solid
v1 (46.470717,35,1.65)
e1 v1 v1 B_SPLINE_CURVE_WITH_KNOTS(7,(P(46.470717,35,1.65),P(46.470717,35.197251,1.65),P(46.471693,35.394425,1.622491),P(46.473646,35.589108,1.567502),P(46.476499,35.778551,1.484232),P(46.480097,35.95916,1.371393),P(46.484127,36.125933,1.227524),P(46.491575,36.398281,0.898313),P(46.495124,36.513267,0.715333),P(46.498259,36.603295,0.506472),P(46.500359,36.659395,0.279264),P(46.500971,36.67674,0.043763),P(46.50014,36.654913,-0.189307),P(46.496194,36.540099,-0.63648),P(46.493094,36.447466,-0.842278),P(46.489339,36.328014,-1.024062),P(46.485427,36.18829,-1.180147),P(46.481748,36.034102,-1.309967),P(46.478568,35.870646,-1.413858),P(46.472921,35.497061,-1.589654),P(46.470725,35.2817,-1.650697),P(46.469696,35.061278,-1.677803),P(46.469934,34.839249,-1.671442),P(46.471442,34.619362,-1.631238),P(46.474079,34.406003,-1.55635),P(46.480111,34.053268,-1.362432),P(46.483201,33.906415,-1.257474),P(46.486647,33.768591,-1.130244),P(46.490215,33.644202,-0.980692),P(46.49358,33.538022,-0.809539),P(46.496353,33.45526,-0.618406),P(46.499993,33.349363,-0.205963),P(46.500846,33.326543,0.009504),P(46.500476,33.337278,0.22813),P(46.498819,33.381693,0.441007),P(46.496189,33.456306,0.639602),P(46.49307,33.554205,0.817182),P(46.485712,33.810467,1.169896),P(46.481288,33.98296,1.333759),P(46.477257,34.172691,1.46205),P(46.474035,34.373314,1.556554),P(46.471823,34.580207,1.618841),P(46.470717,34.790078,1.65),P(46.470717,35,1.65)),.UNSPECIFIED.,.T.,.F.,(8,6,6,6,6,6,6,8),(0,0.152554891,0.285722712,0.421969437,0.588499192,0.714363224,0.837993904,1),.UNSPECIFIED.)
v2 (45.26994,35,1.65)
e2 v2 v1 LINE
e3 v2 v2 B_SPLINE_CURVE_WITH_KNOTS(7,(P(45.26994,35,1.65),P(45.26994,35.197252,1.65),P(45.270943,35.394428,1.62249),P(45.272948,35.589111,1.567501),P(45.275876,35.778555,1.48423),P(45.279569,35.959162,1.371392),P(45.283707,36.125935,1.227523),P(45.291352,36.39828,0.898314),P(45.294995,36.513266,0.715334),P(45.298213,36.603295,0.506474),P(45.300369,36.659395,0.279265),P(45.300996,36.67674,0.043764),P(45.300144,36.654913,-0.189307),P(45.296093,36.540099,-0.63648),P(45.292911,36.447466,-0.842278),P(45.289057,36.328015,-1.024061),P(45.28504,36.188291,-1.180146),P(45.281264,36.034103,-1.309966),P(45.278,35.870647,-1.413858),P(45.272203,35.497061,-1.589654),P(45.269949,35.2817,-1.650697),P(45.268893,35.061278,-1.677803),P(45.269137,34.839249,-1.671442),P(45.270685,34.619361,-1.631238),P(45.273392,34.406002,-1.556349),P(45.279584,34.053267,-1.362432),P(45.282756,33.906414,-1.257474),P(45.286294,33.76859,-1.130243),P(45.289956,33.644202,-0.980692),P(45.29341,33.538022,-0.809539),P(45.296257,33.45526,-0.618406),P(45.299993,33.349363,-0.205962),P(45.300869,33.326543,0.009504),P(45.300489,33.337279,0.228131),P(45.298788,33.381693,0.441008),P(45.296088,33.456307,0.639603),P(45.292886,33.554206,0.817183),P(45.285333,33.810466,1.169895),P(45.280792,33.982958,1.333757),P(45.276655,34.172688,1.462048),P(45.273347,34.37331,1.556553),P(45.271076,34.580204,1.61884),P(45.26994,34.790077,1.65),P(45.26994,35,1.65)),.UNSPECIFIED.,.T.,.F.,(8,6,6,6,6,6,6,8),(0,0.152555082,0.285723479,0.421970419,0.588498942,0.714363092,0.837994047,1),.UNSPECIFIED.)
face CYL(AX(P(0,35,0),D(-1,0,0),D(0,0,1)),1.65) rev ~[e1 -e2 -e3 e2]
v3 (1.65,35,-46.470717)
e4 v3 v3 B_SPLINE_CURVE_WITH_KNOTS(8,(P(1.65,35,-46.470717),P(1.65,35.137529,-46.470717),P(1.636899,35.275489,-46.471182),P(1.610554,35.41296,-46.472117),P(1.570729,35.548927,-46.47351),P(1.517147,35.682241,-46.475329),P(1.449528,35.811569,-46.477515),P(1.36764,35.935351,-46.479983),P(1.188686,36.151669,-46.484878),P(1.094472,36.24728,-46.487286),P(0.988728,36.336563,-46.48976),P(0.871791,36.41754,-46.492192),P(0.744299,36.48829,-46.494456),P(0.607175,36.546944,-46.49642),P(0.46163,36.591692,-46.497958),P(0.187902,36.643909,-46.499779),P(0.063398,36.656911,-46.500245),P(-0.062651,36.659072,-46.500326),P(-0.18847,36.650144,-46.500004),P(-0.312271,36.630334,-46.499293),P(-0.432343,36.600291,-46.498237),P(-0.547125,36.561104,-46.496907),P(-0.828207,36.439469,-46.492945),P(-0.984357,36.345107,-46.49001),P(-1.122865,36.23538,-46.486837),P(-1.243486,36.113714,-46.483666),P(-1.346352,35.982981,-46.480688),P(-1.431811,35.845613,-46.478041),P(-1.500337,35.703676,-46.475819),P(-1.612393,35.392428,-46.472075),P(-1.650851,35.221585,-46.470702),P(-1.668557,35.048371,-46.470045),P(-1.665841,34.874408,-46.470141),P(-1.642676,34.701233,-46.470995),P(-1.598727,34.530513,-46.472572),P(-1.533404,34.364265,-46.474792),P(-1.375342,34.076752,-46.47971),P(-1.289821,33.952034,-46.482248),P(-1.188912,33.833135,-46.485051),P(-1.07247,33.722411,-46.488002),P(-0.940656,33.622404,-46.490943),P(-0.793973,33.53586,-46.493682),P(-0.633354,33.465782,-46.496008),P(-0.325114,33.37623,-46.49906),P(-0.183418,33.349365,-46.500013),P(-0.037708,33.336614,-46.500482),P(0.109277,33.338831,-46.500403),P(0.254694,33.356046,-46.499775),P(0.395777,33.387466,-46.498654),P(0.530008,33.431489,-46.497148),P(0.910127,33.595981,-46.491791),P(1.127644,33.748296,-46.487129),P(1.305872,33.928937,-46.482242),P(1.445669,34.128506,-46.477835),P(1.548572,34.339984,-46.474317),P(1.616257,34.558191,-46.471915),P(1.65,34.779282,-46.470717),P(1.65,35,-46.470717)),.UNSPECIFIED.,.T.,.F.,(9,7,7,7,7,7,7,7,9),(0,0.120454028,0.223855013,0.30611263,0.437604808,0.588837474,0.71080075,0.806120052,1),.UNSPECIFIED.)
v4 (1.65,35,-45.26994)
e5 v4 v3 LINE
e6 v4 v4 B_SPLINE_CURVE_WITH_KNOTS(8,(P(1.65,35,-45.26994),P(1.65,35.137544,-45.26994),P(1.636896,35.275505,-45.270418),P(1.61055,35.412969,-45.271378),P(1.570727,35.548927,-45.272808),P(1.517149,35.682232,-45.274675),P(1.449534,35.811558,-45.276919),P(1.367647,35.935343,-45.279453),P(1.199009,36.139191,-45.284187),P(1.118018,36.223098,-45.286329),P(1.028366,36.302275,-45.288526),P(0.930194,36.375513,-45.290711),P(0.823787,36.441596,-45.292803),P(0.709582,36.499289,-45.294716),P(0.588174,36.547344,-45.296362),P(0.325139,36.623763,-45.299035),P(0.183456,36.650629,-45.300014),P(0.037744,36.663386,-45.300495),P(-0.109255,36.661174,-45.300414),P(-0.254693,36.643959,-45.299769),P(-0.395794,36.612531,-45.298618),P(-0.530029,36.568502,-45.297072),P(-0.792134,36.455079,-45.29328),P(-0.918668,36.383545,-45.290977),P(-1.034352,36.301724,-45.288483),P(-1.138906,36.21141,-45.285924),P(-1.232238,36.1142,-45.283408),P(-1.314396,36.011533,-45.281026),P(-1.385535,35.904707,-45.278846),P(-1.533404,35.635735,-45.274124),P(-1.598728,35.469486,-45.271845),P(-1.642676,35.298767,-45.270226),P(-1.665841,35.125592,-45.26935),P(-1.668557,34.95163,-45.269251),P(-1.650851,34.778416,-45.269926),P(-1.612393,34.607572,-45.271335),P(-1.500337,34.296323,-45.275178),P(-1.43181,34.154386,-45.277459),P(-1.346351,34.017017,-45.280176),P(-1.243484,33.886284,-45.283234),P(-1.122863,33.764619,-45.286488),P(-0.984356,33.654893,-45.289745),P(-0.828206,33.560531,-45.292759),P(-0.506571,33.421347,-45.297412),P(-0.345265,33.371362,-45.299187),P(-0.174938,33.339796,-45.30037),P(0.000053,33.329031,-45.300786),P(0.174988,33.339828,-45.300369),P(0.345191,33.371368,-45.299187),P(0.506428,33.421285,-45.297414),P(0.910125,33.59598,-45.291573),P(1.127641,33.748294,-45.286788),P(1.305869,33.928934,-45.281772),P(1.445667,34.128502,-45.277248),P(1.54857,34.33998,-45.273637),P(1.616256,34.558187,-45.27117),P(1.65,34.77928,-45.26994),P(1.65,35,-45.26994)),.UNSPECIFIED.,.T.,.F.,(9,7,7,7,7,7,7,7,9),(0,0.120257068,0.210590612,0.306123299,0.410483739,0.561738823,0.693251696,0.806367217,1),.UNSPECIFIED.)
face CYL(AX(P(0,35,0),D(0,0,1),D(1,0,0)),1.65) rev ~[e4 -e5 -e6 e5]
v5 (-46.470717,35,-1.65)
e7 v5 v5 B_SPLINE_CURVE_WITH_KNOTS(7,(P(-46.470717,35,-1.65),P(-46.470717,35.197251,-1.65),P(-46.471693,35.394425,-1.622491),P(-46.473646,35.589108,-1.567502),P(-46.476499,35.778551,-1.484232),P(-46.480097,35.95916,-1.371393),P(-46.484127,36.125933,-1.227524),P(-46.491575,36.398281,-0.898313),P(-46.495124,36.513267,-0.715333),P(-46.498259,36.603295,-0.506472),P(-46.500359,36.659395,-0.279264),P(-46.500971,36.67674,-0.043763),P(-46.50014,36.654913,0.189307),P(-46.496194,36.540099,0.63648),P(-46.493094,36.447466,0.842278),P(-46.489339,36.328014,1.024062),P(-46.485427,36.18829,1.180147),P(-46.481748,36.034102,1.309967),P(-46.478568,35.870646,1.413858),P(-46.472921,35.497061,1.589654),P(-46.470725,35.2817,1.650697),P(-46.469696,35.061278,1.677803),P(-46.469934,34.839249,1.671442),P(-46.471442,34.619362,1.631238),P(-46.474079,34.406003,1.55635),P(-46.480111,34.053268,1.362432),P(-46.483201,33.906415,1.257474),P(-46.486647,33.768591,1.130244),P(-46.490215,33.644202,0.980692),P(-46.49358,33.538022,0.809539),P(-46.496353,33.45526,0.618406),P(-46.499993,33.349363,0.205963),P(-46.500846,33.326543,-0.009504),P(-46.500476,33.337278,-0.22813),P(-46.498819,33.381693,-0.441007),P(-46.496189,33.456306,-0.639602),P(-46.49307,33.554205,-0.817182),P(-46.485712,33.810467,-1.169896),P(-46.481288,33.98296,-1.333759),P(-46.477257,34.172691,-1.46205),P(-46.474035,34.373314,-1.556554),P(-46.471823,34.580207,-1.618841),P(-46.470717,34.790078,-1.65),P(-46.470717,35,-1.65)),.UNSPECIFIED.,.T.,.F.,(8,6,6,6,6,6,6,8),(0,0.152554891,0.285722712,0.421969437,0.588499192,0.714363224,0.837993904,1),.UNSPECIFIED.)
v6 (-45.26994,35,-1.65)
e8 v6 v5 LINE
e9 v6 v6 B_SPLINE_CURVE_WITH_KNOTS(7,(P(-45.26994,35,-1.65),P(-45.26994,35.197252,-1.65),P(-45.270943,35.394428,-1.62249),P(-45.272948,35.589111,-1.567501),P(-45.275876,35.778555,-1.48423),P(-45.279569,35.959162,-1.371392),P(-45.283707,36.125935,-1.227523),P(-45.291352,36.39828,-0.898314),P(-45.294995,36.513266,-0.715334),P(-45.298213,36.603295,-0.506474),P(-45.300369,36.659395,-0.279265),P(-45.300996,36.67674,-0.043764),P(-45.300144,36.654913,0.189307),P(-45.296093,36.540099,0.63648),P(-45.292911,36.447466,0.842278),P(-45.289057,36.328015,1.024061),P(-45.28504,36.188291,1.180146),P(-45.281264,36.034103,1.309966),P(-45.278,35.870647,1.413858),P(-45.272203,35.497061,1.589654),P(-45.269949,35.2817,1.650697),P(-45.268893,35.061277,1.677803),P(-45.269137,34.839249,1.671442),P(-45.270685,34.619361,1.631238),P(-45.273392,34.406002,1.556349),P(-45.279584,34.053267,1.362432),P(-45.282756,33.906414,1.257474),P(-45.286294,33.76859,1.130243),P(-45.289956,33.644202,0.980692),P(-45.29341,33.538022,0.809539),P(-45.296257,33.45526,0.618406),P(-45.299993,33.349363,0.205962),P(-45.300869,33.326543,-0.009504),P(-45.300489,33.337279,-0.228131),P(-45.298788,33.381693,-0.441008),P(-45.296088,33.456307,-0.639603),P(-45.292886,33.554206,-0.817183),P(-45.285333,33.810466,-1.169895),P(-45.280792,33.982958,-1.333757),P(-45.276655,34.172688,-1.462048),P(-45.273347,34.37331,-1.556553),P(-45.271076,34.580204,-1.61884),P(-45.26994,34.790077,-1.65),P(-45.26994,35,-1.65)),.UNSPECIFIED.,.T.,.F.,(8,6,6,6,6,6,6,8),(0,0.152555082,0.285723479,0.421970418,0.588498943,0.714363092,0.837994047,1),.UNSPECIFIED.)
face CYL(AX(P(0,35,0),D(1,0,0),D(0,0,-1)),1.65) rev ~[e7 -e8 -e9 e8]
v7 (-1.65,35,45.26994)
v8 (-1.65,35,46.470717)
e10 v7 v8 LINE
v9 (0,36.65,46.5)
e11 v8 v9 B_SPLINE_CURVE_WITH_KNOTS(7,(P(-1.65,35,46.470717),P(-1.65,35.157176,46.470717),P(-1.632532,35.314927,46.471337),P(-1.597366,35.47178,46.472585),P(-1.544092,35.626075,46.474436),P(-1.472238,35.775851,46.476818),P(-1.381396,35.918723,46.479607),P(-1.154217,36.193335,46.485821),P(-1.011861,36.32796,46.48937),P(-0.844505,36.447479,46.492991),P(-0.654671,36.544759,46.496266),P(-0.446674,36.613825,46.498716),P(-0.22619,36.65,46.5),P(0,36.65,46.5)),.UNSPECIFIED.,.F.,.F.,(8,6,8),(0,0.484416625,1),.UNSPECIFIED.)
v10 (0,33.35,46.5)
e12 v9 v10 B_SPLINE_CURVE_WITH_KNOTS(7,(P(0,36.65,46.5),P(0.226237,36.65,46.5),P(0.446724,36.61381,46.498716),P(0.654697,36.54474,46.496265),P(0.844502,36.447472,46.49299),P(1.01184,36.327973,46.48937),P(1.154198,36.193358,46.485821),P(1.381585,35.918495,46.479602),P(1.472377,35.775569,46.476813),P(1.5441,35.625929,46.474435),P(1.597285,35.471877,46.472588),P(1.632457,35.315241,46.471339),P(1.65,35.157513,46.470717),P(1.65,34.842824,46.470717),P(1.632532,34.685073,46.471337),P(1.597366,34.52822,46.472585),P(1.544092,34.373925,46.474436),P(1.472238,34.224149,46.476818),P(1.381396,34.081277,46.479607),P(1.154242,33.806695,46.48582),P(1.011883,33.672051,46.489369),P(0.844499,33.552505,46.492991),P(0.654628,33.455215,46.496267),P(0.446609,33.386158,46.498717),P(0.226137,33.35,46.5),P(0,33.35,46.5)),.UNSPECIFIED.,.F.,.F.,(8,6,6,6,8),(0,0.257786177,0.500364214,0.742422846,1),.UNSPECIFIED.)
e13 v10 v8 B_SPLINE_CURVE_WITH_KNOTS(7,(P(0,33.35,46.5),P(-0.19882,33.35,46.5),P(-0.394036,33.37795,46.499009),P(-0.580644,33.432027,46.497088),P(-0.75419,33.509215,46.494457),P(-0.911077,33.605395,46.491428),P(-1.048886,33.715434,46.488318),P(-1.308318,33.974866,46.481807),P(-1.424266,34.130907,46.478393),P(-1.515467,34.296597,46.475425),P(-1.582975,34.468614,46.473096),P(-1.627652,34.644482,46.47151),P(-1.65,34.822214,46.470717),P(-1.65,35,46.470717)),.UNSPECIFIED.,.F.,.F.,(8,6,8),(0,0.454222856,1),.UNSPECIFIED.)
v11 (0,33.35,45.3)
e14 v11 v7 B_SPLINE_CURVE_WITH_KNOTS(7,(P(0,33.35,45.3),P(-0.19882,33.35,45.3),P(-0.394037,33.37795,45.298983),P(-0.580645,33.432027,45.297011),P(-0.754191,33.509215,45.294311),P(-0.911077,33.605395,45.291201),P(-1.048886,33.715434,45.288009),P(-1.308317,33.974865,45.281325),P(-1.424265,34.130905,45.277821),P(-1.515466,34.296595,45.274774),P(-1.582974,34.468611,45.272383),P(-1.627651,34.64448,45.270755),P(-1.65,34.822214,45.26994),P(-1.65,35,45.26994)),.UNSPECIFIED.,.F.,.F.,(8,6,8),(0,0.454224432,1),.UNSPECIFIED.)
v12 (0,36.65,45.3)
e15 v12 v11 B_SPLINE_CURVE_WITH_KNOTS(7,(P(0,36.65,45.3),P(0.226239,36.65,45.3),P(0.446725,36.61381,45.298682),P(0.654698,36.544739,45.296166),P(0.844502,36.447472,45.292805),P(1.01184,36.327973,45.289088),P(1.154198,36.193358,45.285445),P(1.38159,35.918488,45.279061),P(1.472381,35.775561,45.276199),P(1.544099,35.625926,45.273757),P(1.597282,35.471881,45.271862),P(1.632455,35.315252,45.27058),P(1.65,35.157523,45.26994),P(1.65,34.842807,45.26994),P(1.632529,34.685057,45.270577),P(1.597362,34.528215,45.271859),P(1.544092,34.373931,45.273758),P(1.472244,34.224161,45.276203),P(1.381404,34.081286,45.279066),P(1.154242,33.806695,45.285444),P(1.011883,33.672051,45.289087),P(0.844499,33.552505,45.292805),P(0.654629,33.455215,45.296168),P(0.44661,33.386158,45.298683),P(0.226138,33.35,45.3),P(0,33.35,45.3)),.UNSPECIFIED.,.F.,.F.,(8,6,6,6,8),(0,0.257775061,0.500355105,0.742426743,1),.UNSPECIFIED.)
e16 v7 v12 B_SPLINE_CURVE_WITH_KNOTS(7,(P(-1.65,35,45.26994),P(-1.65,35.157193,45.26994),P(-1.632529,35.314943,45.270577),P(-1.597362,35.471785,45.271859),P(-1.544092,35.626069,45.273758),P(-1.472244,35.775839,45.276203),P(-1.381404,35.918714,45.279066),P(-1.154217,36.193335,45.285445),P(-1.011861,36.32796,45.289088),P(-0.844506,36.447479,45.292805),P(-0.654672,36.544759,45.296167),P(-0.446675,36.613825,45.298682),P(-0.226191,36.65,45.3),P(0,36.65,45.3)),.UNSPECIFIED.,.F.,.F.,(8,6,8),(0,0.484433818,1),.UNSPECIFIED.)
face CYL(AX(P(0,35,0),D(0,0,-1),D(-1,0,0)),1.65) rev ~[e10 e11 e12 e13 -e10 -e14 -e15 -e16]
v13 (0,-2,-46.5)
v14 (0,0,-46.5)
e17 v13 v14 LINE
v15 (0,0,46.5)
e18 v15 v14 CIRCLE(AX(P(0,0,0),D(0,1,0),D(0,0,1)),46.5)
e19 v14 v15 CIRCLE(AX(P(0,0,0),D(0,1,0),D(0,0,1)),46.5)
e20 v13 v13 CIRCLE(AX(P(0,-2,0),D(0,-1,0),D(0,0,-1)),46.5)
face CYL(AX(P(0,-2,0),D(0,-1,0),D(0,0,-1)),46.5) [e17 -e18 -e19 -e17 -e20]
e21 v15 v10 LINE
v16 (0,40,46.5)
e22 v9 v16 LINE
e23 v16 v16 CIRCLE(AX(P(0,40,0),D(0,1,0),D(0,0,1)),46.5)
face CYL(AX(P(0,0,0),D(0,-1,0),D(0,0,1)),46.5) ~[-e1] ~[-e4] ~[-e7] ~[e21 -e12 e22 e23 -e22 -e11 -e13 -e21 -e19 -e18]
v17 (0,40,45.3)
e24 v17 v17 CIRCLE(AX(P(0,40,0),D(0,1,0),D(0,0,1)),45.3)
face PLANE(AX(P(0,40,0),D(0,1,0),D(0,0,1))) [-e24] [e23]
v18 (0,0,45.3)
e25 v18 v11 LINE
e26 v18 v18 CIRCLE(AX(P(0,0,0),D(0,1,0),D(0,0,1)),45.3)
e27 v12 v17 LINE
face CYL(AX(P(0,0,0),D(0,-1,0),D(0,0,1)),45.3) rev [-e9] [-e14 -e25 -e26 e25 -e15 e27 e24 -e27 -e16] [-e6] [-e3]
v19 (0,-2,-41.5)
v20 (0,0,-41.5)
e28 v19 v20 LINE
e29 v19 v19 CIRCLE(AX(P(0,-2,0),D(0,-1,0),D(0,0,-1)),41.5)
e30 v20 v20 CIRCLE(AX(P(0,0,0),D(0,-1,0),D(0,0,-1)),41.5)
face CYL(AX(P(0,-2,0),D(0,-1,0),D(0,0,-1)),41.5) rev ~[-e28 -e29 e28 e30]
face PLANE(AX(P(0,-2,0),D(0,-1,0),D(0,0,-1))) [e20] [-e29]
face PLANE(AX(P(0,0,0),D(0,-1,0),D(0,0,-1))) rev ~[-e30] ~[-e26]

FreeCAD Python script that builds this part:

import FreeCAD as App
import Part
import Sketcher
from FreeCAD import Vector

doc = App.newDocument("Part")
params = doc.addObject("Spreadsheet::Sheet", "Params")
for row, (alias, value) in enumerate([
    ("sketch1_diameter", "93 mm"),
    ("sketch1_diameter2", "90.6 mm"),
    ("pad1_length", "40 mm"),
    ("sketch2_diameter", "3.3 mm"),
    ("sketch3_diameter", "93 mm"),
    ("sketch3_diameter2", "83 mm"),
    ("pad2_length", "2 mm"),
], start=1):
    params.set(f"A{row}", alias)
    params.set(f"B{row}", "=" + value)
    params.setAlias(f"B{row}", alias)

body = doc.addObject("PartDesign::Body", "Body")

# Sketch on XZ plane
sketch1 = body.newObject("Sketcher::SketchObject", "Sketch")
sketch1.AttachmentSupport = (doc.getObject("XZ_Plane"), [""])
sketch1.MapMode = "FlatFace"
sketch1.addGeometry([
    Part.Circle(Vector(0, 0, 0), Vector(0, 0, 1), 46.5),
    Part.Circle(Vector(0, 0, 0), Vector(0, 0, 1), 45.3),
], False)
sketch1.addConstraint([
    Sketcher.Constraint("Coincident", 0, 3, -1, 1),
    Sketcher.Constraint("Coincident", 1, 3, -1, 1),
    Sketcher.Constraint("Diameter", 0, 93.0),
    Sketcher.Constraint("Diameter", 1, 90.6),
])
sketch1.setExpression("Constraints[2]", "Params.sketch1_diameter")
sketch1.setExpression("Constraints[3]", "Params.sketch1_diameter2")
pad1 = body.newObject("PartDesign::Pad", "Pad")
pad1.Profile = sketch1
pad1.setExpression("Length", "Params.pad1_length")
pad1.Reversed = True

# Sketch on YZ plane
sketch2 = body.newObject("Sketcher::SketchObject", "Sketch001")
sketch2.AttachmentSupport = (doc.getObject("YZ_Plane"), [""])
sketch2.MapMode = "FlatFace"
sketch2.addGeometry(Part.Circle(Vector(35, 0, 0), Vector(0, 0, 1), 1.65), False)
sketch2.addConstraint([
    Sketcher.Constraint("PointOnObject", 0, 3, -1),
    Sketcher.Constraint("Diameter", 0, 3.3),
    Sketcher.Constraint("DistanceX", -1, 1, 0, 3, 35.0),
])
sketch2.setExpression("Constraints[1]", "Params.sketch2_diameter")
pocket1 = body.newObject("PartDesign::Pocket", "Pocket")
pocket1.Profile = sketch2
pocket1.Type = "ThroughAll"
doc.recompute()

polarpattern = body.newObject("PartDesign::PolarPattern", "PolarPattern")
polarpattern.Originals = [pocket1]
polarpattern.Axis = (doc.getObject("Y_Axis"), [""])
polarpattern.Angle = 360
polarpattern.Occurrences = 4
body.Tip = polarpattern

# Sketch on XZ plane
sketch3 = body.newObject("Sketcher::SketchObject", "Sketch002")
sketch3.AttachmentSupport = (doc.getObject("XZ_Plane"), [""])
sketch3.MapMode = "FlatFace"
sketch3.AttachmentOffset = App.Placement(Vector(0, 0, 2), App.Rotation())
sketch3.addGeometry([
    Part.Circle(Vector(0, 0, 0), Vector(0, 0, 1), 46.5),
    Part.Circle(Vector(0, 0, 0), Vector(0, 0, 1), 41.5),
], False)
sketch3.addConstraint([
    Sketcher.Constraint("Coincident", 0, 3, -1, 1),
    Sketcher.Constraint("Coincident", 1, 3, -1, 1),
    Sketcher.Constraint("Diameter", 0, 93.0),
    Sketcher.Constraint("Diameter", 1, 83.0),
])
sketch3.setExpression("Constraints[2]", "Params.sketch3_diameter")
sketch3.setExpression("Constraints[3]", "Params.sketch3_diameter2")
pad2 = body.newObject("PartDesign::Pad", "Pad001")
pad2.Profile = sketch3
pad2.setExpression("Length", "Params.pad2_length")
pad2.Reversed = True

doc.recompute()
